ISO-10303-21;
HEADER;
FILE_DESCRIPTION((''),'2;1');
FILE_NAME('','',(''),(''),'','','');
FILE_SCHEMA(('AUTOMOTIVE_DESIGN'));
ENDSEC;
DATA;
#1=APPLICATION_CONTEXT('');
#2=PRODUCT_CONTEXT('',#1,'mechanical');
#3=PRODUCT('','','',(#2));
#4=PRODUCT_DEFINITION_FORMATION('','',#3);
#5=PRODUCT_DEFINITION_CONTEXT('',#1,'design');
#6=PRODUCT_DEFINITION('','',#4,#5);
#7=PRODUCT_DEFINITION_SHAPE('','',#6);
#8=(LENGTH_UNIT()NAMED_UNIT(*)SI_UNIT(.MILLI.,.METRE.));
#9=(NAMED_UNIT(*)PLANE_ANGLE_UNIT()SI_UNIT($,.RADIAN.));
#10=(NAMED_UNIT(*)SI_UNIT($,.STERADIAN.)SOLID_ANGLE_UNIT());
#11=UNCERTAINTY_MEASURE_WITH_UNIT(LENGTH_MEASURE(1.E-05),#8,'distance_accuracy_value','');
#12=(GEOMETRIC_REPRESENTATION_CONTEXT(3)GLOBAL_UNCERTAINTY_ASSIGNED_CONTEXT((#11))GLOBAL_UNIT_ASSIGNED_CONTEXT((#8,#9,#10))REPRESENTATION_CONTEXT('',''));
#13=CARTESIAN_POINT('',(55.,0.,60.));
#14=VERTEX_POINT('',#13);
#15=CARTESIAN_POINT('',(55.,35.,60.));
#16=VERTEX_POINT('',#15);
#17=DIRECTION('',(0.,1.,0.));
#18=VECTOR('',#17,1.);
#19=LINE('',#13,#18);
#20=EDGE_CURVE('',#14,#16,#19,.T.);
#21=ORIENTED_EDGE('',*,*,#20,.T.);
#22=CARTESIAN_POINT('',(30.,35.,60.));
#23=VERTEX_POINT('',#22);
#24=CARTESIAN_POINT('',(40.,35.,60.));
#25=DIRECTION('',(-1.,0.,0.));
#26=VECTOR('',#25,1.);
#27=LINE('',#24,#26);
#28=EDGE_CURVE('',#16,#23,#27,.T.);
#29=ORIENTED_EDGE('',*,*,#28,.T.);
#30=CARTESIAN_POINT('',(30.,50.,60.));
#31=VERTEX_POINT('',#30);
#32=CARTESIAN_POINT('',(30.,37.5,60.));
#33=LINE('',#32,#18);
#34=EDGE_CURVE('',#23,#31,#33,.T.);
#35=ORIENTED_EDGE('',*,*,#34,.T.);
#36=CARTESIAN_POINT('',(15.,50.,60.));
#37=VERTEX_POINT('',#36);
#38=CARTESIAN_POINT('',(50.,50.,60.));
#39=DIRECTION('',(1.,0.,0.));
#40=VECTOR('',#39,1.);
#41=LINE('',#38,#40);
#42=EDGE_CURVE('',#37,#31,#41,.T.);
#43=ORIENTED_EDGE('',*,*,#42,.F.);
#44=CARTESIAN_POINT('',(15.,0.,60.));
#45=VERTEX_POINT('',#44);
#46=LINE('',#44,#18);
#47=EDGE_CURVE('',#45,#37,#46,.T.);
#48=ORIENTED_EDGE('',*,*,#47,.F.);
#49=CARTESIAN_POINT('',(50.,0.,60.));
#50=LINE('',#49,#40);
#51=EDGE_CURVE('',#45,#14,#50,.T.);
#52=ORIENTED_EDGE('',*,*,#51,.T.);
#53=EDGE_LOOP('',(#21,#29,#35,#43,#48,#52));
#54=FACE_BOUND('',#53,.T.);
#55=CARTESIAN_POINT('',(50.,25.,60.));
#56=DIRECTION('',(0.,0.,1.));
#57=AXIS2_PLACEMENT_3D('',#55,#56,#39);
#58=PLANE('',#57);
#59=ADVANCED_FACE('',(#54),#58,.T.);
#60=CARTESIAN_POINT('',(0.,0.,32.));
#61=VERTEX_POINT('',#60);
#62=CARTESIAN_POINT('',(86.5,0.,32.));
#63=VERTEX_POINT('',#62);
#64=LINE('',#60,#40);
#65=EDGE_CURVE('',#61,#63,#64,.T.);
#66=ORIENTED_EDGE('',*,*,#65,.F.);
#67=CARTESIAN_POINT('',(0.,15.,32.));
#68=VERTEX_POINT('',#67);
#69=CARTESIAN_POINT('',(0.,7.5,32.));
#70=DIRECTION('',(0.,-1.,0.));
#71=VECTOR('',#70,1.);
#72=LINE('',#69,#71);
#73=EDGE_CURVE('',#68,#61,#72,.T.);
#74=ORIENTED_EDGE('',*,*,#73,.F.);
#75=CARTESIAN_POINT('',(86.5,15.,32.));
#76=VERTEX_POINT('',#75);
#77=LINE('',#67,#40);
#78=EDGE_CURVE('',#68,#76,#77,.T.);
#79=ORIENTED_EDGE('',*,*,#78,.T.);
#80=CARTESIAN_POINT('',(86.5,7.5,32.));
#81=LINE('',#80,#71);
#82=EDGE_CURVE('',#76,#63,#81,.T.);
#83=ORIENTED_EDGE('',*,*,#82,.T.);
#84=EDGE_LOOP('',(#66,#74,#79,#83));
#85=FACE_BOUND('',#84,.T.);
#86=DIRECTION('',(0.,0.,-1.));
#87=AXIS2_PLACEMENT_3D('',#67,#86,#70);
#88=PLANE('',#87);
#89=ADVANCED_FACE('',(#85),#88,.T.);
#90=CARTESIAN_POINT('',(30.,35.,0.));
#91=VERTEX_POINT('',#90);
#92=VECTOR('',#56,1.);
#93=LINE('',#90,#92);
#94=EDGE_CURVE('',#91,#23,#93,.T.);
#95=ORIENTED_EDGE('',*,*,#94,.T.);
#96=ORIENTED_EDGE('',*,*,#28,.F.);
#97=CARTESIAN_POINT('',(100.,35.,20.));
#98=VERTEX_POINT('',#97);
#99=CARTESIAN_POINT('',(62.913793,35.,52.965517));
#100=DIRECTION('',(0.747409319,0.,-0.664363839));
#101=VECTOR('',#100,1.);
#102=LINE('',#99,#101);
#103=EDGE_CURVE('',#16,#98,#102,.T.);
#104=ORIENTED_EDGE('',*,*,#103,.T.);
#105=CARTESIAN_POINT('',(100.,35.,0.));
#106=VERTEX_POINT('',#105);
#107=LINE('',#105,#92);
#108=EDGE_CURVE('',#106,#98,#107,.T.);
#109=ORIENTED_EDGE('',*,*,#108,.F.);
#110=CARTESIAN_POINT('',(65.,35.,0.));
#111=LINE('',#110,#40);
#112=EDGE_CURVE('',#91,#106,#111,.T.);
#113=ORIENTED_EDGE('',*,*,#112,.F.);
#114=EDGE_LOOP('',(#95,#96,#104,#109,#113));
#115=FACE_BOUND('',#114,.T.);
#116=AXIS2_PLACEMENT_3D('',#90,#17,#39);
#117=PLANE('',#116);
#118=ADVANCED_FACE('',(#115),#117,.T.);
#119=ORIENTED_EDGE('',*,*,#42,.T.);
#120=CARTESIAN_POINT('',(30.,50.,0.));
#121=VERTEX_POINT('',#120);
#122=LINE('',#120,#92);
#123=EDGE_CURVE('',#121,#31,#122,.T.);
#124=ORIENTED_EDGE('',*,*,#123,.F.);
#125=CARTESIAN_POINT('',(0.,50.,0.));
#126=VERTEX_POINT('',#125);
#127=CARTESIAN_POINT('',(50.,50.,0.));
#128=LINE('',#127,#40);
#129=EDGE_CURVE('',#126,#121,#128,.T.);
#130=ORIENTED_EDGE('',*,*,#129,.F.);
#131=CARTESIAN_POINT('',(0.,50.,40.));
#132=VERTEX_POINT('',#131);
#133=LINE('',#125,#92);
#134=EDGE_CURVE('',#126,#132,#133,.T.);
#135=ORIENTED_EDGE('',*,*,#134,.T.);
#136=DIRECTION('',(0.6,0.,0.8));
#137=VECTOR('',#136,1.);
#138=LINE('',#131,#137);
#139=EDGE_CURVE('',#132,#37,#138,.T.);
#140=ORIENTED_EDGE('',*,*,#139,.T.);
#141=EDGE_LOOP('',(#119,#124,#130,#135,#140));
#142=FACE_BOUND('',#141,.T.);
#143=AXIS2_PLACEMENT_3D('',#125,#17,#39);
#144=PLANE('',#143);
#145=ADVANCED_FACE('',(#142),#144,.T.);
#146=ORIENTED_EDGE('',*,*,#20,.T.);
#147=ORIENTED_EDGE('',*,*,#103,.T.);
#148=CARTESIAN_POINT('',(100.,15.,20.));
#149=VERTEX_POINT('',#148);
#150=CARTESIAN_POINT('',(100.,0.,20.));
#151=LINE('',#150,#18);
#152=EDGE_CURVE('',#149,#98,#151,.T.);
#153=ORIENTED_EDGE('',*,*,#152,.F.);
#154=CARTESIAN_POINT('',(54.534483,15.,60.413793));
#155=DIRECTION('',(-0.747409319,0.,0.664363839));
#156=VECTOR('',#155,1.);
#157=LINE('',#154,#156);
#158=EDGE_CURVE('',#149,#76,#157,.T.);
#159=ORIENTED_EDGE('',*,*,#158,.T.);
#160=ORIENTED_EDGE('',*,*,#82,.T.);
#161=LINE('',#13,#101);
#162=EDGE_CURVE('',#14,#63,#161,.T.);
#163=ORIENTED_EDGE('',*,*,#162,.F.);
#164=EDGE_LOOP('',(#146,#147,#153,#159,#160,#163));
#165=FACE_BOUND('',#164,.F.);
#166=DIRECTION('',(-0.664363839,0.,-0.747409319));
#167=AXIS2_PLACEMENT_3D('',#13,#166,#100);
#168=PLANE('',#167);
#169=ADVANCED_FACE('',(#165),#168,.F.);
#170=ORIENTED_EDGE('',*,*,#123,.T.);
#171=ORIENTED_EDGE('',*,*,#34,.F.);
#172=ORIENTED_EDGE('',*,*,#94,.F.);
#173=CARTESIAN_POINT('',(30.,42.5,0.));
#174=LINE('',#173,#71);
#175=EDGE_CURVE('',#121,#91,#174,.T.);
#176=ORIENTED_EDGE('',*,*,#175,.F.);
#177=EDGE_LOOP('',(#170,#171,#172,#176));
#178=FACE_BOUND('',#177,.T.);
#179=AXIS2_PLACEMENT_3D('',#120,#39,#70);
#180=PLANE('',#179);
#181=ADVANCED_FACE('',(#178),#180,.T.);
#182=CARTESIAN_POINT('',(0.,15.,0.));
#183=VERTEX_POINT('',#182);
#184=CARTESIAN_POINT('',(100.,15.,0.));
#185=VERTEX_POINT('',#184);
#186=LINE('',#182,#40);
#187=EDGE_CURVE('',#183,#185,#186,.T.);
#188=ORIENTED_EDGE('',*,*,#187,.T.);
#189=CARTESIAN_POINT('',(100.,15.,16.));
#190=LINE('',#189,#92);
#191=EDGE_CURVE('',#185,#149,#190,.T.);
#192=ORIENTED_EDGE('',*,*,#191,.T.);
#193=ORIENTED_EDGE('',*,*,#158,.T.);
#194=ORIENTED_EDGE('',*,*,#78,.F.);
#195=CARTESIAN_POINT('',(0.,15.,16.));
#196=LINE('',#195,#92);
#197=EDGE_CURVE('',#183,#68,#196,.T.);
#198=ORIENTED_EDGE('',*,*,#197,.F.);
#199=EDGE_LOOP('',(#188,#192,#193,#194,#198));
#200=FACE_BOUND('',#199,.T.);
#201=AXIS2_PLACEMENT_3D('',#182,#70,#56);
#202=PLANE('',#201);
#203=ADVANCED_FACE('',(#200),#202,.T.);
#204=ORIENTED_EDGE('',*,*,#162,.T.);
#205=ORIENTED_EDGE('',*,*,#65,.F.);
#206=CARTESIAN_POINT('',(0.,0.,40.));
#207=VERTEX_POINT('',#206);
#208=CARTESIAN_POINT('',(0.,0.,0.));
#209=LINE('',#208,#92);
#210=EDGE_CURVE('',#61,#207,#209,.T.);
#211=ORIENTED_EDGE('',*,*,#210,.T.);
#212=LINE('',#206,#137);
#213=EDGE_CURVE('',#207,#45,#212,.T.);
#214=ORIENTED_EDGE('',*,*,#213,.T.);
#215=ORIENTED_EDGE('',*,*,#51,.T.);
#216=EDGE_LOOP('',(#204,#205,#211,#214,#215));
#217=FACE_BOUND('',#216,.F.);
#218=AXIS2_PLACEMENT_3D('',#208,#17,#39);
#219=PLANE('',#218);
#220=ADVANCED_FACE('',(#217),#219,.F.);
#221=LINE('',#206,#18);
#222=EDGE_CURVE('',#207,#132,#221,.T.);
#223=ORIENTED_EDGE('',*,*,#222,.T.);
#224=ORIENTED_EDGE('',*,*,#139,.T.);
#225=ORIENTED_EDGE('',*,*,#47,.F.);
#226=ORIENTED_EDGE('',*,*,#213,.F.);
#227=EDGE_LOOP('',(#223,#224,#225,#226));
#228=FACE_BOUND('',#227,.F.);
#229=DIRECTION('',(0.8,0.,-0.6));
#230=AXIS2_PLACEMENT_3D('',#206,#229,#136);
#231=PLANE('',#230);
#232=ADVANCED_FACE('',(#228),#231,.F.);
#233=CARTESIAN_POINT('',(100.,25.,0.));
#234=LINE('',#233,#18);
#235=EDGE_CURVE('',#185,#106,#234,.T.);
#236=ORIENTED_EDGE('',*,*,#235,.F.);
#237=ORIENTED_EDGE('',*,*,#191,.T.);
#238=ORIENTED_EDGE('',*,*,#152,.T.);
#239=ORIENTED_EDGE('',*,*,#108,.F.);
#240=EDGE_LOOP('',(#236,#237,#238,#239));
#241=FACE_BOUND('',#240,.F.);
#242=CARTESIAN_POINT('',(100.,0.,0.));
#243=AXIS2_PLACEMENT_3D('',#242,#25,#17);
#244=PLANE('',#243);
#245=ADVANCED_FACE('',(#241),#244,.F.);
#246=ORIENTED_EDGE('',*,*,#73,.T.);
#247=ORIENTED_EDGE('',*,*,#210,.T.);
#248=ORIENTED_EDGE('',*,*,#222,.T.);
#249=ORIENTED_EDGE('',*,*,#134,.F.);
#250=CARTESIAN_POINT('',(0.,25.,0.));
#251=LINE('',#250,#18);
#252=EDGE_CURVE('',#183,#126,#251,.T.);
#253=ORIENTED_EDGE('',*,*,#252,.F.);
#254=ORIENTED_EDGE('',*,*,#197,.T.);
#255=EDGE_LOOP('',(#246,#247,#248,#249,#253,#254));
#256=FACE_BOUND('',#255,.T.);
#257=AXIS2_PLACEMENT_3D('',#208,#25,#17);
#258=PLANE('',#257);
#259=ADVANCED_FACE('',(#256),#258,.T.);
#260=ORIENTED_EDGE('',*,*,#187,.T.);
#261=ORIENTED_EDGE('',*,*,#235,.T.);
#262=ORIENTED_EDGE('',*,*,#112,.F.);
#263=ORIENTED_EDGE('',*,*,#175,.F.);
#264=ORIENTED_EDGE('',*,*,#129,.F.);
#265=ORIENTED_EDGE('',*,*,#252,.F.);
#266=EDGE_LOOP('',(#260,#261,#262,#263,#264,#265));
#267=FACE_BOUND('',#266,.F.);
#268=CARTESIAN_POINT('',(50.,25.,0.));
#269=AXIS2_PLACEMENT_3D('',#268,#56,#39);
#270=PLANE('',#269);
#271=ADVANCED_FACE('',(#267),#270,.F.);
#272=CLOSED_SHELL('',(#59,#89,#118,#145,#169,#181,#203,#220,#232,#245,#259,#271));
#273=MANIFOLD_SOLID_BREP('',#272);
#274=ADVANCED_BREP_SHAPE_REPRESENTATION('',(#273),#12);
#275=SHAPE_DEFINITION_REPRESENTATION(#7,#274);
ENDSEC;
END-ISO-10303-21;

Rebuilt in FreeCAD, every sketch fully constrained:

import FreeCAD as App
import Part
import Sketcher

V = App.Vector
Q = App.Units.Quantity


def add_polygon(sketch, points):
    """Adds a closed chain of lines whose ends are joined by coincident constraints."""
    first, n = sketch.GeometryCount, len(points)
    for a, b in zip(points, points[1:] + points[:1]):
        sketch.addGeometry(Part.LineSegment(App.Vector(*a, 0), App.Vector(*b, 0)), False)
    for i in range(n):
        sketch.addConstraint(Sketcher.Constraint("Coincident", first + i, 2, first + (i + 1) % n, 1))

doc = App.newDocument("Part")
body = doc.addObject("PartDesign::Body", "Body")

# Sketch on XY plane
sketch1 = body.newObject("Sketcher::SketchObject", "Sketch")
sketch1.AttachmentSupport = (doc.getObject("XY_Plane"), [""])
sketch1.MapMode = "FlatFace"
add_polygon(sketch1, [(0, 50), (0, 0), (100, 0), (100, 50)])  # lines 0-3
sketch1.addConstraint(Sketcher.Constraint("Vertical", 0))
sketch1.addConstraint(Sketcher.Constraint("Horizontal", 1))
sketch1.addConstraint(Sketcher.Constraint("Vertical", 2))
sketch1.addConstraint(Sketcher.Constraint("Horizontal", 3))
sketch1.addConstraint(Sketcher.Constraint("Coincident", 0, 2, -1, 1))
sketch1.addConstraint(Sketcher.Constraint("DistanceX", 1, 1, 1, 2, Q("100 mm")))
sketch1.addConstraint(Sketcher.Constraint("DistanceY", 0, 2, 0, 1, Q("50 mm")))
pad1 = body.newObject("PartDesign::Pad", "Pad")
pad1.Profile = sketch1
pad1.Length = 60

# Sketch on XZ plane
sketch2 = body.newObject("Sketcher::SketchObject", "Sketch001")
sketch2.AttachmentSupport = (doc.getObject("XZ_Plane"), [""])
sketch2.MapMode = "FlatFace"
add_polygon(sketch2, [(0, 40), (15, 60), (0, 60)])  # lines 0-2
sketch2.addConstraint(Sketcher.Constraint("Horizontal", 1))
sketch2.addConstraint(Sketcher.Constraint("Vertical", 2))
sketch2.addConstraint(Sketcher.Constraint("PointOnObject", 1, 2, -2))
sketch2.addConstraint(Sketcher.Constraint("DistanceX", 1, 2, 1, 1, Q("15 mm")))
sketch2.addConstraint(Sketcher.Constraint("DistanceY", 2, 2, 2, 1, Q("20 mm")))
sketch2.addConstraint(Sketcher.Constraint("DistanceY", -1, 1, 0, 2, Q("60 mm")))
pocket1 = body.newObject("PartDesign::Pocket", "Pocket")
pocket1.Profile = sketch2
pocket1.Type = "ThroughAll"

# Sketch on XZ plane
sketch3 = body.newObject("Sketcher::SketchObject", "Sketch002")
sketch3.AttachmentSupport = (doc.getObject("XZ_Plane"), [""])
sketch3.MapMode = "FlatFace"
add_polygon(sketch3, [(100, 60), (55, 60), (100, 20)])  # lines 0-2
sketch3.addConstraint(Sketcher.Constraint("Horizontal", 0))
sketch3.addConstraint(Sketcher.Constraint("Vertical", 2))
sketch3.addConstraint(Sketcher.Constraint("DistanceX", 0, 2, 0, 1, Q("45 mm")))
sketch3.addConstraint(Sketcher.Constraint("DistanceY", 2, 1, 2, 2, Q("40 mm")))
sketch3.addConstraint(Sketcher.Constraint("DistanceX", -1, 1, 0, 2, Q("55 mm")))
sketch3.addConstraint(Sketcher.Constraint("DistanceY", -1, 1, 0, 2, Q("60 mm")))
pocket2 = body.newObject("PartDesign::Pocket", "Pocket001")
pocket2.Profile = sketch3
pocket2.Type = "ThroughAll"

# Sketch on YZ plane
sketch4 = body.newObject("Sketcher::SketchObject", "Sketch003")
sketch4.AttachmentSupport = (doc.getObject("YZ_Plane"), [""])
sketch4.MapMode = "FlatFace"
add_polygon(sketch4, [(15, 32), (15, 0), (0, 0), (0, 32)])  # lines 0-3
sketch4.addConstraint(Sketcher.Constraint("Vertical", 0))
sketch4.addConstraint(Sketcher.Constraint("Horizontal", 1))
sketch4.addConstraint(Sketcher.Constraint("Vertical", 2))
sketch4.addConstraint(Sketcher.Constraint("Horizontal", 3))
sketch4.addConstraint(Sketcher.Constraint("Coincident", 1, 2, -1, 1))
sketch4.addConstraint(Sketcher.Constraint("DistanceX", 1, 2, 1, 1, Q("15 mm")))
sketch4.addConstraint(Sketcher.Constraint("DistanceY", 0, 2, 0, 1, Q("32 mm")))
pocket3 = body.newObject("PartDesign::Pocket", "Pocket002")
pocket3.Profile = sketch4
pocket3.Type = "ThroughAll"
pocket3.Reversed = True

# Sketch on XY plane
sketch5 = body.newObject("Sketcher::SketchObject", "Sketch004")
sketch5.AttachmentSupport = (doc.getObject("XY_Plane"), [""])
sketch5.MapMode = "FlatFace"
add_polygon(sketch5, [(30, 35), (30, 50), (100, 50), (100, 35)])  # lines 0-3
sketch5.addConstraint(Sketcher.Constraint("Vertical", 0))
sketch5.addConstraint(Sketcher.Constraint("Horizontal", 1))
sketch5.addConstraint(Sketcher.Constraint("Vertical", 2))
sketch5.addConstraint(Sketcher.Constraint("Horizontal", 3))
sketch5.addConstraint(Sketcher.Constraint("DistanceX", 1, 1, 1, 2, Q("70 mm")))
sketch5.addConstraint(Sketcher.Constraint("DistanceY", 0, 1, 0, 2, Q("15 mm")))
sketch5.addConstraint(Sketcher.Constraint("DistanceX", -1, 1, 0, 2, Q("30 mm")))
sketch5.addConstraint(Sketcher.Constraint("DistanceY", -1, 1, 0, 2, Q("50 mm")))
pocket4 = body.newObject("PartDesign::Pocket", "Pocket003")
pocket4.Profile = sketch5
pocket4.Type = "ThroughAll"
pocket4.Reversed = True

doc.recompute()
